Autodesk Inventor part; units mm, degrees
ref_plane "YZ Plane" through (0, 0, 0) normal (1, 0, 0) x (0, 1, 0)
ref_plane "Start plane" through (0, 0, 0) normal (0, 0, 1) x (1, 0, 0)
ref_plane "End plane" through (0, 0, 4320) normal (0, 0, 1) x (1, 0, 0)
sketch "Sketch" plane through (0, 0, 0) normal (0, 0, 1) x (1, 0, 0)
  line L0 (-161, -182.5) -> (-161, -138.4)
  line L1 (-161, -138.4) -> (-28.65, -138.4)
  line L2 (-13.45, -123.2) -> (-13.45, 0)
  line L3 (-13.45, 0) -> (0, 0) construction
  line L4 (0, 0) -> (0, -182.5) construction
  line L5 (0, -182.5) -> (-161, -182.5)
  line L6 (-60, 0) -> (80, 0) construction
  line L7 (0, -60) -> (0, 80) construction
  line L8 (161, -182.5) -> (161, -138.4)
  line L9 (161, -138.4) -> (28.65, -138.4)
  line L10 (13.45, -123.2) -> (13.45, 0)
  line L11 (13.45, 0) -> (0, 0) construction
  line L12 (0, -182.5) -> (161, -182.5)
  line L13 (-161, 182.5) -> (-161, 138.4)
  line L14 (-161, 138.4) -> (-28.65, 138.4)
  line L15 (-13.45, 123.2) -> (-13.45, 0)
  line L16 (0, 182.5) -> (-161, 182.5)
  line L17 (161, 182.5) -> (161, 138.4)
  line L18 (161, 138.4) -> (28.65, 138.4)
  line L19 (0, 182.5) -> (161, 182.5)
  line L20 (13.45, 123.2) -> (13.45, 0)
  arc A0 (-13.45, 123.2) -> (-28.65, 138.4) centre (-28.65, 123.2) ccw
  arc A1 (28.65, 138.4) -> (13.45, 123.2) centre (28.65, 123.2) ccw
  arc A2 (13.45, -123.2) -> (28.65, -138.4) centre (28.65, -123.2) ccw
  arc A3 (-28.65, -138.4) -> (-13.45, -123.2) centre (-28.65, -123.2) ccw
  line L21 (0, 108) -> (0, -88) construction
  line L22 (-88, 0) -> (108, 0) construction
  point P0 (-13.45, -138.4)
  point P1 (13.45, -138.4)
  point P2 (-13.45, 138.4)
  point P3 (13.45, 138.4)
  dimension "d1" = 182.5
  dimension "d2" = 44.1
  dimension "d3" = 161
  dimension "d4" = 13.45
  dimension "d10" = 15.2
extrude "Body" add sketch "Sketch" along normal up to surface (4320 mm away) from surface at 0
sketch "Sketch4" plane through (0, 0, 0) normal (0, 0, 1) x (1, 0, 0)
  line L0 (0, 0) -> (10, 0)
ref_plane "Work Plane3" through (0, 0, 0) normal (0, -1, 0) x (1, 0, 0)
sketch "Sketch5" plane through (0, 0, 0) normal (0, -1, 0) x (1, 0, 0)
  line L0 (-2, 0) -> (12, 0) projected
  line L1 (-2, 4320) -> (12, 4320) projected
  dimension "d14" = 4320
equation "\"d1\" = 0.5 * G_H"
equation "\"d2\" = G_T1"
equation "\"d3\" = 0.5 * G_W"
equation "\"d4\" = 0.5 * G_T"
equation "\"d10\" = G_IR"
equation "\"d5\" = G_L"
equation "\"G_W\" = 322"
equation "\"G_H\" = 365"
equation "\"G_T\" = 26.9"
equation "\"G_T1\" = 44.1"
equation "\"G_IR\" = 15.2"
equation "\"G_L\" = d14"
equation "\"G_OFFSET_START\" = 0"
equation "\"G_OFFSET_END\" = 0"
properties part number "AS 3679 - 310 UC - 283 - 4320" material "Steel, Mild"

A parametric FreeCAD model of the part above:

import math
import FreeCAD as App
import Part
import Sketcher

V = App.Vector

doc = App.newDocument("Part")
body = doc.addObject("PartDesign::Body", "Body")

sketch1 = body.newObject("Sketcher::SketchObject", "Sketch")
sketch1.AttachmentSupport = (doc.getObject("XY_Plane"), [""])
sketch1.MapMode = "FlatFace"
sketch1.addGeometry(Part.LineSegment(V(-161, -138, 0), V(-161, -182, 0)), False)
sketch1.addGeometry(Part.LineSegment(V(-161, -182, 0), V(161, -182, 0)), False)
sketch1.addGeometry(Part.LineSegment(V(161, -182, 0), V(161, -138, 0)), False)
sketch1.addGeometry(Part.LineSegment(V(161, -138, 0), V(29, -138, 0)), False)
sketch1.addGeometry(Part.ArcOfCircle(Part.Circle(V(29, -123, 0), V(0, 0, 1), 15), math.radians(180), math.radians(270)), False)
sketch1.addGeometry(Part.LineSegment(V(13, -123, 0), V(13, 123, 0)), False)
sketch1.addGeometry(Part.ArcOfCircle(Part.Circle(V(29, 123, 0), V(0, 0, 1), 15), math.radians(90), math.radians(180)), False)
sketch1.addGeometry(Part.LineSegment(V(29, 138, 0), V(161, 138, 0)), False)
sketch1.addGeometry(Part.LineSegment(V(161, 138, 0), V(161, 182, 0)), False)
sketch1.addGeometry(Part.LineSegment(V(161, 182, 0), V(-161, 182, 0)), False)
sketch1.addGeometry(Part.LineSegment(V(-161, 182, 0), V(-161, 138, 0)), False)
sketch1.addGeometry(Part.LineSegment(V(-161, 138, 0), V(-29, 138, 0)), False)
sketch1.addGeometry(Part.ArcOfCircle(Part.Circle(V(-29, 123, 0), V(0, 0, 1), 15), math.radians(0), math.radians(90)), False)
sketch1.addGeometry(Part.LineSegment(V(-13, 123, 0), V(-13, -123, 0)), False)
sketch1.addGeometry(Part.ArcOfCircle(Part.Circle(V(-29, -123, 0), V(0, 0, 1), 15), math.radians(-90), math.radians(0)), False)
sketch1.addGeometry(Part.LineSegment(V(-29, -138, 0), V(-161, -138, 0)), False)
sketch1.addConstraint(Sketcher.Constraint("Coincident", 0, 2, 1, 1))
sketch1.addConstraint(Sketcher.Constraint("Coincident", 1, 2, 2, 1))
sketch1.addConstraint(Sketcher.Constraint("Coincident", 2, 2, 3, 1))
sketch1.addConstraint(Sketcher.Constraint("Tangent", 3, 2, 4, 2))
sketch1.addConstraint(Sketcher.Constraint("Tangent", 4, 1, 5, 1))
sketch1.addConstraint(Sketcher.Constraint("Tangent", 5, 2, 6, 2))
sketch1.addConstraint(Sketcher.Constraint("Tangent", 6, 1, 7, 1))
sketch1.addConstraint(Sketcher.Constraint("Coincident", 7, 2, 8, 1))
sketch1.addConstraint(Sketcher.Constraint("Coincident", 8, 2, 9, 1))
sketch1.addConstraint(Sketcher.Constraint("Coincident", 9, 2, 10, 1))
sketch1.addConstraint(Sketcher.Constraint("Coincident", 10, 2, 11, 1))
sketch1.addConstraint(Sketcher.Constraint("Tangent", 11, 2, 12, 2))
sketch1.addConstraint(Sketcher.Constraint("Tangent", 12, 1, 13, 1))
sketch1.addConstraint(Sketcher.Constraint("Tangent", 13, 2, 14, 2))
sketch1.addConstraint(Sketcher.Constraint("Tangent", 14, 1, 15, 1))
sketch1.addConstraint(Sketcher.Constraint("Coincident", 15, 2, 0, 1))
sketch1.addConstraint(Sketcher.Constraint("Vertical", 0))
sketch1.addConstraint(Sketcher.Constraint("Horizontal", 1))
sketch1.addConstraint(Sketcher.Constraint("Vertical", 2))
sketch1.addConstraint(Sketcher.Constraint("Horizontal", 3))
sketch1.addConstraint(Sketcher.Constraint("Vertical", 5))
sketch1.addConstraint(Sketcher.Constraint("Horizontal", 7))
sketch1.addConstraint(Sketcher.Constraint("Vertical", 8))
sketch1.addConstraint(Sketcher.Constraint("Horizontal", 9))
sketch1.addConstraint(Sketcher.Constraint("Vertical", 10))
sketch1.addConstraint(Sketcher.Constraint("Horizontal", 11))
sketch1.addConstraint(Sketcher.Constraint("Vertical", 13))
sketch1.addConstraint(Sketcher.Constraint("Horizontal", 15))
sketch1.addConstraint(Sketcher.Constraint("Equal", 4, 6))
sketch1.addConstraint(Sketcher.Constraint("Equal", 6, 12))
sketch1.addConstraint(Sketcher.Constraint("Equal", 12, 14))
sketch1.addConstraint(Sketcher.Constraint("Symmetric", 4, 3, 12, 3, -1, 1))
sketch1.addConstraint(Sketcher.Constraint("Symmetric", 0, 2, 8, 2, -1, 1))
sketch1.addConstraint(Sketcher.Constraint("Symmetric", 7, 2, 10, 2, -2))
sketch1.addConstraint(Sketcher.Constraint("Symmetric", 2, 2, 15, 2, -2))
sketch1.addConstraint(Sketcher.Constraint("Radius", 4, 15.2))
sketch1.addConstraint(Sketcher.Constraint("DistanceY", 0, 2, 0, 1, 44.1))
sketch1.addConstraint(Sketcher.Constraint("DistanceX", 0, 2, -1, 1, 161.0))
sketch1.addConstraint(Sketcher.Constraint("DistanceY", 0, 2, -1, 1, 182.5))
sketch1.addConstraint(Sketcher.Constraint("DistanceX", -1, 1, 4, 1, 13.45))
pad1 = body.newObject("PartDesign::Pad", "Pad")
pad1.Profile = sketch1
pad1.Length = 4320

doc.recompute()
